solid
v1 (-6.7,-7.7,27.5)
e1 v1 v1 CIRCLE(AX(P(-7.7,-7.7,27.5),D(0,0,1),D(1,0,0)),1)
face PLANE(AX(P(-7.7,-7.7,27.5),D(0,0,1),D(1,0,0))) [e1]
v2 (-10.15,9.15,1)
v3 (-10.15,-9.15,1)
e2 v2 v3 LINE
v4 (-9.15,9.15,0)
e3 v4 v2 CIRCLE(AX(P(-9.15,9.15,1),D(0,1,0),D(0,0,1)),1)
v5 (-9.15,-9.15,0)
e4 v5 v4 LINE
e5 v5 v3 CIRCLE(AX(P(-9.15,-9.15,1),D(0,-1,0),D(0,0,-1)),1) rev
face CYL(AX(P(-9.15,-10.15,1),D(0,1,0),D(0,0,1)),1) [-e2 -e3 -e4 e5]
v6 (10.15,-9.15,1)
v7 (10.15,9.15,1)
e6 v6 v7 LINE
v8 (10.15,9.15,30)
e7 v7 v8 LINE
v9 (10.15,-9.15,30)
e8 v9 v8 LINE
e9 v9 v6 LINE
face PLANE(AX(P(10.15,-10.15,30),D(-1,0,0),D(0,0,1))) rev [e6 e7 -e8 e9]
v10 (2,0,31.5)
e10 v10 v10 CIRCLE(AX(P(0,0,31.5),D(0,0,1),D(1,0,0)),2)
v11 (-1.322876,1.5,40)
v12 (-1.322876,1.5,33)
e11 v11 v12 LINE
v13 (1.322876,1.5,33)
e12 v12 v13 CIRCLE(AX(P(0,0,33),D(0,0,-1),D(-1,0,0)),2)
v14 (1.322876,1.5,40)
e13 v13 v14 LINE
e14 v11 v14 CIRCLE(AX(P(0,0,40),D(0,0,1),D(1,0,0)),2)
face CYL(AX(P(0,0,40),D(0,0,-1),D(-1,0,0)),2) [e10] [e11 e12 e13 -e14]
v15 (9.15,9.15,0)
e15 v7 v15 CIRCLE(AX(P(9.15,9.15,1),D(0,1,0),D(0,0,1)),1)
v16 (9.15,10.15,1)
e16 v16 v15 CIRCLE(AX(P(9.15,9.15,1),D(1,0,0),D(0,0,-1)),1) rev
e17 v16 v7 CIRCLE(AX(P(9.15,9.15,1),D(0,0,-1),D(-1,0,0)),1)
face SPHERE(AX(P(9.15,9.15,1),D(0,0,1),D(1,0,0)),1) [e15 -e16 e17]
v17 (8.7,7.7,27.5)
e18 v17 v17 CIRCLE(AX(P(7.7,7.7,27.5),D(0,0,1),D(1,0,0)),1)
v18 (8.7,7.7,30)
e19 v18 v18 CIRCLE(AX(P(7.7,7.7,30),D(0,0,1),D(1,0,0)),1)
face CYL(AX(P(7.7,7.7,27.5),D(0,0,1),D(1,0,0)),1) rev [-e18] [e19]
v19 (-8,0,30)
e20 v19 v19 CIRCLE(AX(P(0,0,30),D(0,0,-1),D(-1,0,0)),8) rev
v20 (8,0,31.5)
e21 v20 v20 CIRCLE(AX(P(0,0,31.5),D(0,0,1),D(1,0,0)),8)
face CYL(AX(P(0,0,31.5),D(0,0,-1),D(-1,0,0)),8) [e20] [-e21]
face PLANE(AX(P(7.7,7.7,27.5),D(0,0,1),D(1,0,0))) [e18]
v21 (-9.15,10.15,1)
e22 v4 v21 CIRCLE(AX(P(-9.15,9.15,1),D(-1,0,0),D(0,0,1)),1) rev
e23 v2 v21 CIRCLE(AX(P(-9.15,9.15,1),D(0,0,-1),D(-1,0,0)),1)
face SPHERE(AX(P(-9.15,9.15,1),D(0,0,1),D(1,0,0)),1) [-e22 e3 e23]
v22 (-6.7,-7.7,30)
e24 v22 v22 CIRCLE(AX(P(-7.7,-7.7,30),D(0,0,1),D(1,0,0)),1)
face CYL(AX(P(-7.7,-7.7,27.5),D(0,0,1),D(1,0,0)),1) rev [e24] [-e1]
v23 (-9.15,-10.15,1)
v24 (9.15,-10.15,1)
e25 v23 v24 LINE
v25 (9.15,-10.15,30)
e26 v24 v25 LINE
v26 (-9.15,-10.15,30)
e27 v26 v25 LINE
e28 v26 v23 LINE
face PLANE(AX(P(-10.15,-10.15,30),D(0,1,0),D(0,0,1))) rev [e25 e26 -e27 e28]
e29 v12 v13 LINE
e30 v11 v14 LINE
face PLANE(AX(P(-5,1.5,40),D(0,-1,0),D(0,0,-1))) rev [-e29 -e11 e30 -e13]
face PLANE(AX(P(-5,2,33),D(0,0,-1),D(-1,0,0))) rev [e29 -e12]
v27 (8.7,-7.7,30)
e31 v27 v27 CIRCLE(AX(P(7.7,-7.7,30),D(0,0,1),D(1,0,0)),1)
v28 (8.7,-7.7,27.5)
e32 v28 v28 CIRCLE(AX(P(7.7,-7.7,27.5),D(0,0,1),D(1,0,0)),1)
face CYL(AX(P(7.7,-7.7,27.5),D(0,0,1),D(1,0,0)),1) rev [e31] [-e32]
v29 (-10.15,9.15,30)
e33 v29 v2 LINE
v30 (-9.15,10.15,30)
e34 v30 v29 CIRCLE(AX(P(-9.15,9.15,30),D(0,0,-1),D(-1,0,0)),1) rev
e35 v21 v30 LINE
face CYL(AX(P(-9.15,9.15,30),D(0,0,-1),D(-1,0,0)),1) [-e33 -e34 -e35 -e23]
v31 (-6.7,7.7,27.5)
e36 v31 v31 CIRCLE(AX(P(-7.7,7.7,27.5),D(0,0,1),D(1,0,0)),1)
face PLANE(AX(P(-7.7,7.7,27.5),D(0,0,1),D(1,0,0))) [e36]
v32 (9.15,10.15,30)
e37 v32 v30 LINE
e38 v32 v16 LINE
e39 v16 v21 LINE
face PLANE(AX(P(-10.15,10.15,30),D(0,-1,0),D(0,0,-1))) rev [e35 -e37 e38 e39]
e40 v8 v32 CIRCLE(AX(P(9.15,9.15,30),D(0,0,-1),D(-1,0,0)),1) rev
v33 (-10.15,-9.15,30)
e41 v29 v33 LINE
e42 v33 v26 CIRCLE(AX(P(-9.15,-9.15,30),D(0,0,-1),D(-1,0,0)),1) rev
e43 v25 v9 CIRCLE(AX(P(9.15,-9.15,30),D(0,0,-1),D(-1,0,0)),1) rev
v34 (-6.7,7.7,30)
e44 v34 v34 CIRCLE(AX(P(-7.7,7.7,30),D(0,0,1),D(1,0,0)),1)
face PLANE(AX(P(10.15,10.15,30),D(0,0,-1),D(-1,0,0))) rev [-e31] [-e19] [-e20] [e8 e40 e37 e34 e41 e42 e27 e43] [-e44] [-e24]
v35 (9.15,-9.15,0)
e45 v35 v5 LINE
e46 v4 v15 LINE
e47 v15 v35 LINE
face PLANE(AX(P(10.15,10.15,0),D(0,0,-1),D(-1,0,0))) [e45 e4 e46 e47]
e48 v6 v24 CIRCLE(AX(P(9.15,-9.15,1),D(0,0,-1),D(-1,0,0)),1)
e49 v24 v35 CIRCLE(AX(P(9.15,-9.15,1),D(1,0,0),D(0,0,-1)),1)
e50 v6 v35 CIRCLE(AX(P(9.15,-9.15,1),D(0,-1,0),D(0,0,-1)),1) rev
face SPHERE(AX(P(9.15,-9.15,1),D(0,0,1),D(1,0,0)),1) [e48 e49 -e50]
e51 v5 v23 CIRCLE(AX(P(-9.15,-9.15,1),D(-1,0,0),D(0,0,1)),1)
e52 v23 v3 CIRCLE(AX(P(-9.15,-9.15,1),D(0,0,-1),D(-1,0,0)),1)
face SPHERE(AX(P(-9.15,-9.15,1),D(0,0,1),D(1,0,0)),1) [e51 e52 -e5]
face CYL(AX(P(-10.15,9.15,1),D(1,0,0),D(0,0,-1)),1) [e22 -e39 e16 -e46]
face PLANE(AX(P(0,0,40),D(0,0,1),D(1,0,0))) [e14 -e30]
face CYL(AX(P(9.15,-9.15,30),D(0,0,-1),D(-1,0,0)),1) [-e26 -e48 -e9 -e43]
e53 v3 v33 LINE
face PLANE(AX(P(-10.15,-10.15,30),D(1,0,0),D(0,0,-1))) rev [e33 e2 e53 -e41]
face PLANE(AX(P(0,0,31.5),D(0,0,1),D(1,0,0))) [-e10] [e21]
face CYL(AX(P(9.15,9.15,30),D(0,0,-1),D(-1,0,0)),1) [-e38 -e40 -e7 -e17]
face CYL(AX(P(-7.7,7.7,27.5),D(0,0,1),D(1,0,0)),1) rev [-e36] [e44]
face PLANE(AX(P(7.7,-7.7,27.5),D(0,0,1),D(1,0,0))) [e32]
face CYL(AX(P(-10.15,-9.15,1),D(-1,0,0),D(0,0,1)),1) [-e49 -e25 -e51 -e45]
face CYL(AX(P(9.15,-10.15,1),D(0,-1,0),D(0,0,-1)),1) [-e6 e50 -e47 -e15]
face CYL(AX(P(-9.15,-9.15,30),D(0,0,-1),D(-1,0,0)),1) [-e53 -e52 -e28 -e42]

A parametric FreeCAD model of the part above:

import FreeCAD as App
import Part
import Sketcher
from FreeCAD import Vector


def edges_at(feature, points):
    """Names of the edges that pass closest to the given points."""
    edges = feature.Shape.Edges
    near = lambda p: min(range(len(edges)), key=lambda i: edges[i].distToShape(Part.Vertex(*p))[0])
    return sorted({f"Edge{near(p) + 1}" for p in points})

doc = App.newDocument("Part")
params = doc.addObject("Spreadsheet::Sheet", "Params")
for row, (alias, value) in enumerate([
    ("sketch1_width", "20.3 mm"),
    ("pad1_length", "30 mm"),
    ("sketch2_diameter", "16 mm"),
    ("pad2_length", "1.5 mm"),
    ("sketch3_diameter", "4 mm"),
    ("pad3_length", "8.5 mm"),
    ("sketch4_height", "7 mm"),
    ("sketch4_width", "0.5 mm"),
    ("pocket1_length", "10 mm"),
    ("sketch5_diameter", "2 mm"),
    ("pocket2_length", "2.5 mm"),
    ("fillet_radius", "1 mm"),
], start=1):
    params.set(f"A{row}", alias)
    params.set(f"B{row}", "=" + value)
    params.setAlias(f"B{row}", alias)

body = doc.addObject("PartDesign::Body", "Body")

sketch1 = body.newObject("Sketcher::SketchObject", "Sketch")
sketch1.AttachmentSupport = (doc.getObject("XY_Plane"), [""])
sketch1.MapMode = "FlatFace"
sketch1.addGeometry(Part.LineSegment(Vector(-10, 10, 0), Vector(-10, -10, 0)), False)
sketch1.addGeometry(Part.LineSegment(Vector(-10, -10, 0), Vector(10, -10, 0)), False)
sketch1.addGeometry(Part.LineSegment(Vector(10, -10, 0), Vector(10, 10, 0)), False)
sketch1.addGeometry(Part.LineSegment(Vector(10, 10, 0), Vector(-10, 10, 0)), False)
sketch1.addConstraint(Sketcher.Constraint("Coincident", 0, 2, 1, 1))
sketch1.addConstraint(Sketcher.Constraint("Coincident", 1, 2, 2, 1))
sketch1.addConstraint(Sketcher.Constraint("Coincident", 2, 2, 3, 1))
sketch1.addConstraint(Sketcher.Constraint("Coincident", 3, 2, 0, 1))
sketch1.addConstraint(Sketcher.Constraint("Vertical", 0))
sketch1.addConstraint(Sketcher.Constraint("Horizontal", 1))
sketch1.addConstraint(Sketcher.Constraint("Vertical", 2))
sketch1.addConstraint(Sketcher.Constraint("Horizontal", 3))
sketch1.addConstraint(Sketcher.Constraint("Symmetric", 0, 2, 2, 2, -1, 1))
sketch1.addConstraint(Sketcher.Constraint("Equal", 3, 0))
sketch1.addConstraint(Sketcher.Constraint("DistanceX", 1, 1, 1, 2, 20.3))
sketch1.setExpression("Constraints[10]", "Params.sketch1_width")
pad1 = body.newObject("PartDesign::Pad", "Pad")
pad1.Profile = sketch1
pad1.setExpression("Length", "Params.pad1_length")

sketch2 = body.newObject("Sketcher::SketchObject", "Sketch001")
sketch2.AttachmentSupport = (doc.getObject("XY_Plane"), [""])
sketch2.MapMode = "FlatFace"
sketch2.AttachmentOffset = App.Placement(Vector(0, 0, 30), App.Rotation())
sketch2.addGeometry(Part.Circle(Vector(0, 0, 0), Vector(0, 0, 1), 8), False)
sketch2.addConstraint(Sketcher.Constraint("Coincident", 0, 3, -1, 1))
sketch2.addConstraint(Sketcher.Constraint("Diameter", 0, 16.0))
sketch2.setExpression("Constraints[1]", "Params.sketch2_diameter")
pad2 = body.newObject("PartDesign::Pad", "Pad001")
pad2.Profile = sketch2
pad2.setExpression("Length", "Params.pad2_length")

sketch3 = body.newObject("Sketcher::SketchObject", "Sketch002")
sketch3.AttachmentSupport = (doc.getObject("XY_Plane"), [""])
sketch3.MapMode = "FlatFace"
sketch3.AttachmentOffset = App.Placement(Vector(0, 0, 31.5), App.Rotation())
sketch3.addGeometry(Part.Circle(Vector(0, 0, 0), Vector(0, 0, 1), 2), False)
sketch3.addConstraint(Sketcher.Constraint("Coincident", 0, 3, -1, 1))
sketch3.addConstraint(Sketcher.Constraint("Diameter", 0, 4.0))
sketch3.setExpression("Constraints[1]", "Params.sketch3_diameter")
pad3 = body.newObject("PartDesign::Pad", "Pad002")
pad3.Profile = sketch3
pad3.setExpression("Length", "Params.pad3_length")

sketch4 = body.newObject("Sketcher::SketchObject", "Sketch003")
sketch4.AttachmentSupport = (doc.getObject("YZ_Plane"), [""])
sketch4.MapMode = "FlatFace"
sketch4.addGeometry(Part.LineSegment(Vector(2, 40, 0), Vector(1.5, 40, 0)), False)
sketch4.addGeometry(Part.LineSegment(Vector(1.5, 40, 0), Vector(1.5, 33, 0)), False)
sketch4.addGeometry(Part.LineSegment(Vector(1.5, 33, 0), Vector(2, 33, 0)), False)
sketch4.addGeometry(Part.LineSegment(Vector(2, 33, 0), Vector(2, 40, 0)), False)
sketch4.addConstraint(Sketcher.Constraint("Coincident", 0, 2, 1, 1))
sketch4.addConstraint(Sketcher.Constraint("Coincident", 1, 2, 2, 1))
sketch4.addConstraint(Sketcher.Constraint("Coincident", 2, 2, 3, 1))
sketch4.addConstraint(Sketcher.Constraint("Coincident", 3, 2, 0, 1))
sketch4.addConstraint(Sketcher.Constraint("Horizontal", 0))
sketch4.addConstraint(Sketcher.Constraint("Vertical", 1))
sketch4.addConstraint(Sketcher.Constraint("Horizontal", 2))
sketch4.addConstraint(Sketcher.Constraint("Vertical", 3))
sketch4.addConstraint(Sketcher.Constraint("DistanceY", 1, 2, 1, 1, 7.0))
sketch4.addConstraint(Sketcher.Constraint("DistanceX", 0, 2, 0, 1, 0.5))
sketch4.addConstraint(Sketcher.Constraint("DistanceY", -1, 1, 0, 2, 40.0))
sketch4.addConstraint(Sketcher.Constraint("DistanceX", -1, 1, 2, 2, 2.0))
sketch4.setExpression("Constraints[8]", "Params.sketch4_height")
sketch4.setExpression("Constraints[9]", "Params.sketch4_width")
pocket1 = body.newObject("PartDesign::Pocket", "Pocket")
pocket1.Profile = sketch4
pocket1.setExpression("Length", "Params.pocket1_length")
pocket1.Midplane = True

sketch5 = body.newObject("Sketcher::SketchObject", "Sketch004")
sketch5.AttachmentSupport = (doc.getObject("XY_Plane"), [""])
sketch5.MapMode = "FlatFace"
sketch5.AttachmentOffset = App.Placement(Vector(0, 0, 30), App.Rotation())
sketch5.addGeometry(Part.Circle(Vector(-7.7, 7.7, 0), Vector(0, 0, 1), 1), False)
sketch5.addGeometry(Part.Circle(Vector(7.7, 7.7, 0), Vector(0, 0, 1), 1), False)
sketch5.addGeometry(Part.Circle(Vector(7.7, -7.7, 0), Vector(0, 0, 1), 1), False)
sketch5.addGeometry(Part.Circle(Vector(-7.7, -7.7, 0), Vector(0, 0, 1), 1), False)
sketch5.addConstraint(Sketcher.Constraint("Equal", 0, 1))
sketch5.addConstraint(Sketcher.Constraint("Equal", 1, 2))
sketch5.addConstraint(Sketcher.Constraint("Equal", 2, 3))
sketch5.addConstraint(Sketcher.Constraint("Symmetric", 0, 3, 2, 3, -1, 1))
sketch5.addConstraint(Sketcher.Constraint("Symmetric", 1, 3, 3, 3, -1, 1))
sketch5.addConstraint(Sketcher.Constraint("Symmetric", 0, 3, 1, 3, -2))
sketch5.addConstraint(Sketcher.Constraint("Diameter", 0, 2.0))
sketch5.addConstraint(Sketcher.Constraint("DistanceX", 0, 3, -1, 1, 7.7))
sketch5.addConstraint(Sketcher.Constraint("DistanceY", -1, 1, 0, 3, 7.7))
sketch5.setExpression("Constraints[6]", "Params.sketch5_diameter")
pocket2 = body.newObject("PartDesign::Pocket", "Pocket001")
pocket2.Profile = sketch5
pocket2.setExpression("Length", "Params.pocket2_length")
doc.recompute()

fillet = body.newObject("PartDesign::Fillet", "Fillet")
fillet.Base = (pocket2, edges_at(pocket2, [
    (0, -10.15, 0),
    (-10.15, 0, 0),
    (0, 10.15, 0),
    (10.15, 0, 0),
    (10.15, -10.15, 15),
    (-10.15, -10.15, 15),
    (-10.15, 10.15, 15),
    (10.15, 10.15, 15),
]))
fillet.setExpression("Radius", "Params.fillet_radius")

doc.recompute()
